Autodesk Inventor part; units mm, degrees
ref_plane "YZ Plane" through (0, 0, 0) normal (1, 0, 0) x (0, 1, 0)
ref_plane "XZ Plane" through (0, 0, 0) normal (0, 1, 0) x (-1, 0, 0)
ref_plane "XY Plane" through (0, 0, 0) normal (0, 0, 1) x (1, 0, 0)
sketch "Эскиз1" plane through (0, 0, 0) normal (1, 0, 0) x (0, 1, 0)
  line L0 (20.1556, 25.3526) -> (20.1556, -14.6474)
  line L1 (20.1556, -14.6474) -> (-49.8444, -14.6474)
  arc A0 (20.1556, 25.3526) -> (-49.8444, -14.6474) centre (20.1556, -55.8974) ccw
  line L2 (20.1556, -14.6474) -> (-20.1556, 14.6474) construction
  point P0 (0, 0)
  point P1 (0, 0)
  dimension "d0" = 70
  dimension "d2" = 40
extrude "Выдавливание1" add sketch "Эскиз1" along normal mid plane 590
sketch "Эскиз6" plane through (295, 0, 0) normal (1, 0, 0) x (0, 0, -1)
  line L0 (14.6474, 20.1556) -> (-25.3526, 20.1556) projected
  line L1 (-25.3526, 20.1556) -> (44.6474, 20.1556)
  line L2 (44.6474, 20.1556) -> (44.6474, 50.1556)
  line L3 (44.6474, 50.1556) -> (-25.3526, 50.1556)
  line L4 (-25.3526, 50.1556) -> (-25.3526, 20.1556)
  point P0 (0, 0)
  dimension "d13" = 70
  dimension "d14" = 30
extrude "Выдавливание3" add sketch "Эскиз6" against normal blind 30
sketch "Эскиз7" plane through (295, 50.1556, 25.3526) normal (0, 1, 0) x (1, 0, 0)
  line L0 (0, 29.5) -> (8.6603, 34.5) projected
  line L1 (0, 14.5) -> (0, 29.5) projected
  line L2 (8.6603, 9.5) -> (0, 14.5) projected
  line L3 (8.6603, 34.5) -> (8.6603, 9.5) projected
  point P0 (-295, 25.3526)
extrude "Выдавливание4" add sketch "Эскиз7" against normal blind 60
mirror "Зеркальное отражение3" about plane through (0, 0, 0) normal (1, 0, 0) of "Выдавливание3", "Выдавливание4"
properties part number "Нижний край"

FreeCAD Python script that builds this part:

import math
import FreeCAD as App
import Part
import Sketcher
Q = App.Units.Quantity


def add_polygon(sketch, points):
    """Adds a closed chain of lines whose ends are joined by coincident constraints."""
    first, n = sketch.GeometryCount, len(points)
    for a, b in zip(points, points[1:] + points[:1]):
        sketch.addGeometry(Part.LineSegment(App.Vector(*a, 0), App.Vector(*b, 0)), False)
    for i in range(n):
        sketch.addConstraint(Sketcher.Constraint("Coincident", first + i, 2, first + (i + 1) % n, 1))

doc = App.newDocument("Part")
body = doc.addObject("PartDesign::Body", "Body")

sketch1 = body.newObject("Sketcher::SketchObject", "Sketch")
sketch1.AttachmentSupport = (doc.getObject("YZ_Plane"), [""])
sketch1.MapMode = "FlatFace"
sketch1.addGeometry([
    Part.LineSegment(App.Vector(20.1556, -14.6474, 0), App.Vector(20.1556, 25.3526, 0)),
    Part.ArcOfCircle(Part.Circle(App.Vector(20.1556, -55.8974, 0), App.Vector(0, 0, 1), 81.25), math.radians(90), math.radians(149.489763)),
    Part.LineSegment(App.Vector(-49.8444, -14.6474, 0), App.Vector(20.1556, -14.6474, 0)),
], False)
sketch1.addConstraint([
    Sketcher.Constraint("Coincident", 0, 2, 1, 1),
    Sketcher.Constraint("Coincident", 1, 2, 2, 1),
    Sketcher.Constraint("Coincident", 2, 2, 0, 1),
    Sketcher.Constraint("Vertical", 0),
    Sketcher.Constraint("Horizontal", 2),
    Sketcher.Constraint("Vertical", 1, 3, 0, 2),
    Sketcher.Constraint("DistanceX", 2, 1, 2, 2, 70.0),
    Sketcher.Constraint("DistanceY", 0, 1, 0, 2, 40.0),
    Sketcher.Constraint("DistanceX", -1, 1, 1, 3, 20.1556),
    Sketcher.Constraint("DistanceY", 1, 3, -1, 1, 55.8974),
])
pad1 = body.newObject("PartDesign::Pad", "Pad")
pad1.Profile = sketch1
pad1.Length = 590
pad1.Midplane = True

sketch2 = body.newObject("Sketcher::SketchObject", "Sketch001")
sketch2.AttachmentSupport = (doc.getObject("YZ_Plane"), [""])
sketch2.MapMode = "FlatFace"
sketch2.AttachmentOffset = App.Placement(App.Vector(0, 0, 295), App.Rotation())
add_polygon(sketch2, [(20.1556, 25.3526), (20.1556, -44.6474), (50.1556, -44.6474), (50.1556, 25.3526)])
sketch2.addConstraint([
    Sketcher.Constraint("Vertical", 0),
    Sketcher.Constraint("Horizontal", 1),
    Sketcher.Constraint("Vertical", 2),
    Sketcher.Constraint("Horizontal", 3),
    Sketcher.Constraint("DistanceX", 1, 1, 1, 2, 30.0),
    Sketcher.Constraint("DistanceY", 0, 2, 0, 1, 70.0),
    Sketcher.Constraint("DistanceX", -1, 1, 0, 2, 20.1556),
    Sketcher.Constraint("DistanceY", 0, 2, -1, 1, 44.6474),
])
pad2 = body.newObject("PartDesign::Pad", "Pad001")
pad2.Profile = sketch2
pad2.Length = 30
pad2.Reversed = True

sketch3 = body.newObject("Sketcher::SketchObject", "Sketch002")
sketch3.AttachmentSupport = (doc.getObject("XZ_Plane"), [""])
sketch3.MapMode = "FlatFace"
sketch3.AttachmentOffset = App.Placement(App.Vector(0, 0, -50.1556), App.Rotation())
add_polygon(sketch3, [(303.6603, -9.1474), (295, -4.1474), (295, 10.8526), (303.6603, 15.8526)])
sketch3.addConstraint([
    Sketcher.Constraint("Vertical", 1),
    Sketcher.Constraint("Vertical", 3),
    Sketcher.Constraint("Equal", 0, 2),
    Sketcher.Constraint("DistanceY", 1, 1, 1, 2, 15.0),
    Sketcher.Constraint("DistanceY", 3, 2, 3, 1, 25.0),
    Sketcher.Constraint("Angle", 0, Q("150.0001 deg")),
    Sketcher.Constraint("DistanceX", -1, 1, 0, 2, 295.0),
    Sketcher.Constraint("DistanceY", 0, 2, -1, 1, 4.1474),
])
pad3 = body.newObject("PartDesign::Pad", "Pad002")
pad3.Profile = sketch3
pad3.Length = 60
doc.recompute()

mirrored = body.newObject("PartDesign::Mirrored", "Mirrored")
mirrored.Originals = [pad2, pad3]
mirrored.MirrorPlane = (doc.getObject("YZ_Plane"), [""])
body.Tip = mirrored

doc.recompute()
